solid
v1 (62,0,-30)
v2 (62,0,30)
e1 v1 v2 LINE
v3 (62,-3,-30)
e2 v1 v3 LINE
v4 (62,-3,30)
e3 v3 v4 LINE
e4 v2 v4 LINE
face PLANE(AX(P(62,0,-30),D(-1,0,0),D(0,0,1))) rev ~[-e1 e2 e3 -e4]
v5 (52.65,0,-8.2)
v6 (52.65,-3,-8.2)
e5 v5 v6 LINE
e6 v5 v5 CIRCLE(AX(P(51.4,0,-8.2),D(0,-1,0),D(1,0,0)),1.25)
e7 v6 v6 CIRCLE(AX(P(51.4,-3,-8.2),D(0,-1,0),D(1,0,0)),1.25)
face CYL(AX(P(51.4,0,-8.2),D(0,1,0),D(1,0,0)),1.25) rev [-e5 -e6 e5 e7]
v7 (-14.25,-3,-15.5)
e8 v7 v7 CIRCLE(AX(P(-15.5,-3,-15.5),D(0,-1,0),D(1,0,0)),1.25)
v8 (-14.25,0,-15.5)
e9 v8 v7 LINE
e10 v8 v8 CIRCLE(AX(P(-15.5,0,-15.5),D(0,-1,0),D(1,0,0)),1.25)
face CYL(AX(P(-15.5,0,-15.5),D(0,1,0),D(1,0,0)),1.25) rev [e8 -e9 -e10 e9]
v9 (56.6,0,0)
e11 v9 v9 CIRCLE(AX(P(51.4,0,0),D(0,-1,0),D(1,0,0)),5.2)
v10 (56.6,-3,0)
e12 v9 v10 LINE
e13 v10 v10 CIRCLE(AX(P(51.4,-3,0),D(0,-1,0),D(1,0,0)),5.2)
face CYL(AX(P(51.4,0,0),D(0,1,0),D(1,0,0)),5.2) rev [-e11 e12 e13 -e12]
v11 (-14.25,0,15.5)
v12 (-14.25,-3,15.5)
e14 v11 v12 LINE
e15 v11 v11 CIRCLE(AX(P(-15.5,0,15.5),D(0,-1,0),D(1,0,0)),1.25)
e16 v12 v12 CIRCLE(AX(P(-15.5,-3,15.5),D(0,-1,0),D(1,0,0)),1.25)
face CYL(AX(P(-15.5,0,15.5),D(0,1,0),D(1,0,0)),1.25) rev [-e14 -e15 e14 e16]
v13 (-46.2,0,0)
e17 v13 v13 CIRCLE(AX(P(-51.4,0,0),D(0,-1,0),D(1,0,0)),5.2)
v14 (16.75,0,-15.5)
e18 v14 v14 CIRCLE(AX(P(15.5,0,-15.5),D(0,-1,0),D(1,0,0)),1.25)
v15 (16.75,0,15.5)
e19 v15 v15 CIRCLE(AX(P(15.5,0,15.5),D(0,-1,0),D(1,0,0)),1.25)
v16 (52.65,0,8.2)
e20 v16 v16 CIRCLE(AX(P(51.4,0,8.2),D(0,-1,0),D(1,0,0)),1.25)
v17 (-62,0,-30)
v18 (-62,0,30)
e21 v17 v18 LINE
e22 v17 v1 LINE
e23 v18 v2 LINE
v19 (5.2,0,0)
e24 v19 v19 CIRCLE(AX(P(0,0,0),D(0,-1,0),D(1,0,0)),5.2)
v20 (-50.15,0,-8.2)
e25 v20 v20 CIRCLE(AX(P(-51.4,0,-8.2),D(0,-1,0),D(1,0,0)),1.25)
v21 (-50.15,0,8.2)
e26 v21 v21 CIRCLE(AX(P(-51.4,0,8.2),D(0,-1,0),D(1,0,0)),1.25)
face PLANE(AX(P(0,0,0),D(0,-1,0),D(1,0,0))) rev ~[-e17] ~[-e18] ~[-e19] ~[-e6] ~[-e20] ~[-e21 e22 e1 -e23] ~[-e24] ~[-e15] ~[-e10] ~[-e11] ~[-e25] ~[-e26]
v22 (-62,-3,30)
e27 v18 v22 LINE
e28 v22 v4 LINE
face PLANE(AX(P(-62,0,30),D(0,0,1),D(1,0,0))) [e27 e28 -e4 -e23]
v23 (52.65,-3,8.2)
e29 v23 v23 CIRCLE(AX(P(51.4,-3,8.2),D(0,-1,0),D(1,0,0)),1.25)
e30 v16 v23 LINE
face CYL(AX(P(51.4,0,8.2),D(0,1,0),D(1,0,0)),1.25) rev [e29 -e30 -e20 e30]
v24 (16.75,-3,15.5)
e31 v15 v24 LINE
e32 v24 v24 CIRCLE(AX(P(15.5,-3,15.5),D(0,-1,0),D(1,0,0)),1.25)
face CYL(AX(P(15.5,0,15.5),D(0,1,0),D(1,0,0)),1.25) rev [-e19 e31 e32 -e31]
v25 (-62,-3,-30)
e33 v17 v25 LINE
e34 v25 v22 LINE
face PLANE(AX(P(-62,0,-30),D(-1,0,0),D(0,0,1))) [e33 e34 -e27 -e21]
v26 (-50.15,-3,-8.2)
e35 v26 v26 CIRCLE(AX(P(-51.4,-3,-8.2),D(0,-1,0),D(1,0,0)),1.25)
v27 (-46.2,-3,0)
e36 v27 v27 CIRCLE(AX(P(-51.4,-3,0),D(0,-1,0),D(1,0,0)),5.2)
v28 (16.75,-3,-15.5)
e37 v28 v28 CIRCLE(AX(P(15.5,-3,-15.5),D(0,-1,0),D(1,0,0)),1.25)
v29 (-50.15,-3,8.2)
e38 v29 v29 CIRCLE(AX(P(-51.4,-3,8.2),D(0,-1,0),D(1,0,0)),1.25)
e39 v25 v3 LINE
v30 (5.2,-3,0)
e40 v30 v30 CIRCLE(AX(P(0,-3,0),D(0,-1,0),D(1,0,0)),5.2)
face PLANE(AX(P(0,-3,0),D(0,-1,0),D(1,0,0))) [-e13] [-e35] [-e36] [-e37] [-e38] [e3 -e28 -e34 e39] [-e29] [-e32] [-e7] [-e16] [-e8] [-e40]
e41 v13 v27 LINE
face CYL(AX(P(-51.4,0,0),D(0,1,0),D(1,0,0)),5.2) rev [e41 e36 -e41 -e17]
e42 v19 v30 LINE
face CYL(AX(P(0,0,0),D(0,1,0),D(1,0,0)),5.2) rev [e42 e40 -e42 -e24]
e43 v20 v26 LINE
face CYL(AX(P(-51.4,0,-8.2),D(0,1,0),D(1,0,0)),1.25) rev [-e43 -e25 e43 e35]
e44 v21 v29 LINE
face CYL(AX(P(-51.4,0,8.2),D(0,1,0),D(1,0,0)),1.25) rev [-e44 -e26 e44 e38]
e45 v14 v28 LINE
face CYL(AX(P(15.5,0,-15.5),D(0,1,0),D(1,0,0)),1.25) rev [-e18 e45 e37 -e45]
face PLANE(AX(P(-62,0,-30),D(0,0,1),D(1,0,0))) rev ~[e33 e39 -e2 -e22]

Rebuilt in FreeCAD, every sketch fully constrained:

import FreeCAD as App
import Part
import Sketcher

V = App.Vector


def add_polygon(sketch, points):
    """Adds a closed chain of lines whose ends are joined by coincident constraints."""
    first, n = sketch.GeometryCount, len(points)
    for a, b in zip(points, points[1:] + points[:1]):
        sketch.addGeometry(Part.LineSegment(App.Vector(*a, 0), App.Vector(*b, 0)), False)
    for i in range(n):
        sketch.addConstraint(Sketcher.Constraint("Coincident", first + i, 2, first + (i + 1) % n, 1))

doc = App.newDocument("Part")
body = doc.addObject("PartDesign::Body", "Body")

# Sketch on XZ plane
sketch1 = body.newObject("Sketcher::SketchObject", "Sketch")
sketch1.AttachmentSupport = (doc.getObject("XZ_Plane"), [""])
sketch1.MapMode = "FlatFace"
add_polygon(sketch1, [(-62, 30), (-62, -30), (62, -30), (62, 30)])  # lines 0-3
sketch1.addGeometry(Part.Circle(V(-15.5, -15.5, 0), V(0, 0, 1), 1.2), False)  # 4
sketch1.addGeometry(Part.Circle(V(-51.4, -8.2, 0), V(0, 0, 1), 1.2), False)  # 5
sketch1.addGeometry(Part.Circle(V(15.5, -15.5, 0), V(0, 0, 1), 1.2), False)  # 6
sketch1.addGeometry(Part.Circle(V(51.4, -8.2, 0), V(0, 0, 1), 1.2), False)  # 7
sketch1.addGeometry(Part.Circle(V(-51.4, 0, 0), V(0, 0, 1), 5.2), False)  # 8
sketch1.addGeometry(Part.Circle(V(-51.4, 8.2, 0), V(0, 0, 1), 1.2), False)  # 9
sketch1.addGeometry(Part.Circle(V(-15.5, 15.5, 0), V(0, 0, 1), 1.2), False)  # 10
sketch1.addGeometry(Part.Circle(V(0, 0, 0), V(0, 0, 1), 5.2), False)  # 11
sketch1.addGeometry(Part.Circle(V(51.4, 0, 0), V(0, 0, 1), 5.2), False)  # 12
sketch1.addGeometry(Part.Circle(V(51.4, 8.2, 0), V(0, 0, 1), 1.2), False)  # 13
sketch1.addGeometry(Part.Circle(V(15.5, 15.5, 0), V(0, 0, 1), 1.2), False)  # 14
sketch1.addConstraint(Sketcher.Constraint("Vertical", 0))
sketch1.addConstraint(Sketcher.Constraint("Horizontal", 1))
sketch1.addConstraint(Sketcher.Constraint("Vertical", 2))
sketch1.addConstraint(Sketcher.Constraint("Horizontal", 3))
sketch1.addConstraint(Sketcher.Constraint("Coincident", 11, 3, -1, 1))
sketch1.addConstraint(Sketcher.Constraint("Equal", 4, 5))
sketch1.addConstraint(Sketcher.Constraint("Equal", 5, 6))
sketch1.addConstraint(Sketcher.Constraint("Equal", 6, 7))
sketch1.addConstraint(Sketcher.Constraint("Equal", 7, 9))
sketch1.addConstraint(Sketcher.Constraint("Equal", 9, 10))
sketch1.addConstraint(Sketcher.Constraint("Equal", 8, 11))
sketch1.addConstraint(Sketcher.Constraint("Equal", 11, 12))
sketch1.addConstraint(Sketcher.Constraint("Equal", 10, 13))
sketch1.addConstraint(Sketcher.Constraint("Equal", 13, 14))
sketch1.addConstraint(Sketcher.Constraint("Symmetric", 7, 3, 9, 3, -1, 1))
sketch1.addConstraint(Sketcher.Constraint("Symmetric", 6, 3, 10, 3, -1, 1))
sketch1.addConstraint(Sketcher.Constraint("Symmetric", 8, 3, 12, 3, -1, 1))
sketch1.addConstraint(Sketcher.Constraint("Symmetric", 5, 3, 13, 3, -1, 1))
sketch1.addConstraint(Sketcher.Constraint("Symmetric", 4, 3, 14, 3, -1, 1))
sketch1.addConstraint(Sketcher.Constraint("Symmetric", 0, 2, 2, 2, -1, 1))
sketch1.addConstraint(Sketcher.Constraint("Symmetric", 4, 3, 6, 3, -2))
sketch1.addConstraint(Sketcher.Constraint("Symmetric", 5, 3, 7, 3, -2))
sketch1.addConstraint(Sketcher.Constraint("PointOnObject", 8, 3, -1))
sketch1.addConstraint(Sketcher.Constraint("Vertical", 5, 3, 8, 3))
sketch1.addConstraint(Sketcher.Constraint("Diameter", 4, 2.5))
sketch1.addConstraint(Sketcher.Constraint("Diameter", 8, 10.4))
sketch1.addConstraint(Sketcher.Constraint("DistanceX", 1, 1, 1, 2, 124.0))
sketch1.addConstraint(Sketcher.Constraint("DistanceY", 0, 2, 0, 1, 60.0))
sketch1.addConstraint(Sketcher.Constraint("DistanceX", 4, 3, 6, 3, 31.0))
sketch1.addConstraint(Sketcher.Constraint("DistanceY", 4, 3, 10, 3, 31.0))
sketch1.addConstraint(Sketcher.Constraint("DistanceX", 5, 3, -1, 1, 51.4))
sketch1.addConstraint(Sketcher.Constraint("DistanceY", 5, 3, -1, 1, 8.2))
pad1 = body.newObject("PartDesign::Pad", "Pad")
pad1.Profile = sketch1
pad1.Length = 3

doc.recompute()
